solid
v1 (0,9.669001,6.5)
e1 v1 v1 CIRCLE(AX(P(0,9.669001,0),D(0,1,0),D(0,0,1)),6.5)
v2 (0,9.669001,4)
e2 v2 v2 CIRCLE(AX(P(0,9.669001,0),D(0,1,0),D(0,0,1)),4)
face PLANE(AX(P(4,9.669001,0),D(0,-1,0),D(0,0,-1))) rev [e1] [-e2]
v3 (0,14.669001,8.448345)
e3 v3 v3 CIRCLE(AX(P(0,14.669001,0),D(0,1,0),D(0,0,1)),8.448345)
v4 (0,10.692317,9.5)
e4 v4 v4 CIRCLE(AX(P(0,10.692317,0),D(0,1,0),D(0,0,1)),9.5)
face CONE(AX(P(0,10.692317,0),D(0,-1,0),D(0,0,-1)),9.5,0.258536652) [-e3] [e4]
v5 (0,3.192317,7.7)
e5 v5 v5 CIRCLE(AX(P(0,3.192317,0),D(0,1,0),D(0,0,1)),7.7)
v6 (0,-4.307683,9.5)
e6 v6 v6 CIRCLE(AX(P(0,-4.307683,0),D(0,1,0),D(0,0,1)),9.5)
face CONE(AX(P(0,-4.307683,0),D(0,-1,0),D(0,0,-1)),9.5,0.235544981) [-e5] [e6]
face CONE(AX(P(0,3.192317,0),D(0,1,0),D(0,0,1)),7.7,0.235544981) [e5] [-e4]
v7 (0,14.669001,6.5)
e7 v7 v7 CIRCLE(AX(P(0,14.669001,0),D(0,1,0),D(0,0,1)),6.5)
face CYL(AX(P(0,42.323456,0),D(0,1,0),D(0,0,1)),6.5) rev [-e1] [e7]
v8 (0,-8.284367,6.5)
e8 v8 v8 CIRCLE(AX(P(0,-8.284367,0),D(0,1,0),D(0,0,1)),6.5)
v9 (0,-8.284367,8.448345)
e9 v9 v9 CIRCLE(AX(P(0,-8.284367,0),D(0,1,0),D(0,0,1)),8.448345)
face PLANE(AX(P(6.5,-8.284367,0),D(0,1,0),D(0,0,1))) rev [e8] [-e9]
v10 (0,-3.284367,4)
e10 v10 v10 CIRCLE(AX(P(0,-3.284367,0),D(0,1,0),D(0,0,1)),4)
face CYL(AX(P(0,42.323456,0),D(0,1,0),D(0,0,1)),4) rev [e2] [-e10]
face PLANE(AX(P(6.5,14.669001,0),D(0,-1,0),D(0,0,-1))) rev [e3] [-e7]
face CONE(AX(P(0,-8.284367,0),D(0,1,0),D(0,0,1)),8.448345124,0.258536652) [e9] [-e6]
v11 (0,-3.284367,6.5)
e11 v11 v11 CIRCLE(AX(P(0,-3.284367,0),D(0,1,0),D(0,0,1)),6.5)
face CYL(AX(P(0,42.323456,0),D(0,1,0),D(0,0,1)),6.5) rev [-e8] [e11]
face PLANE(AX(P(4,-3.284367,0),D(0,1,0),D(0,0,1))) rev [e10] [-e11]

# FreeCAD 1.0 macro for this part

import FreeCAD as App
import Part
import Sketcher

V = App.Vector

doc = App.newDocument("Part")
body = doc.addObject("PartDesign::Body", "Body")

sketch1 = doc.addObject("Sketcher::SketchObject", "Sketch")
body.addObject(sketch1)
sketch1.AttachmentSupport = (doc.XY_Plane, [""])
sketch1.MapMode = "FlatFace"
sketch1.addGeometry(Part.LineSegment(V(4, 9.669001, 0), V(4, -3.284367, 0)), False)
sketch1.addGeometry(Part.LineSegment(V(4, -3.284367, 0), V(6.5, -3.284367, 0)), False)
sketch1.addGeometry(Part.LineSegment(V(6.5, -3.284367, 0), V(6.5, -8.284367, 0)), False)
sketch1.addGeometry(Part.LineSegment(V(6.5, -8.284367, 0), V(8.448345, -8.284367, 0)), False)
sketch1.addGeometry(Part.LineSegment(V(8.448345, -8.284367, 0), V(9.5, -4.307683, 0)), False)
sketch1.addGeometry(Part.LineSegment(V(9.5, -4.307683, 0), V(7.7, 3.192317, 0)), False)
sketch1.addGeometry(Part.LineSegment(V(7.7, 3.192317, 0), V(9.5, 10.692317, 0)), False)
sketch1.addGeometry(Part.LineSegment(V(9.5, 10.692317, 0), V(8.448345, 14.669001, 0)), False)
sketch1.addGeometry(Part.LineSegment(V(8.448345, 14.669001, 0), V(6.5, 14.669001, 0)), False)
sketch1.addGeometry(Part.LineSegment(V(6.5, 14.669001, 0), V(6.5, 9.669001, 0)), False)
sketch1.addGeometry(Part.LineSegment(V(6.5, 9.669001, 0), V(4, 9.669001, 0)), False)
sketch1.addConstraint(Sketcher.Constraint("Coincident", 0, 2, 1, 1))
sketch1.addConstraint(Sketcher.Constraint("Coincident", 1, 2, 2, 1))
sketch1.addConstraint(Sketcher.Constraint("Coincident", 2, 2, 3, 1))
sketch1.addConstraint(Sketcher.Constraint("Coincident", 3, 2, 4, 1))
sketch1.addConstraint(Sketcher.Constraint("Coincident", 4, 2, 5, 1))
sketch1.addConstraint(Sketcher.Constraint("Coincident", 5, 2, 6, 1))
sketch1.addConstraint(Sketcher.Constraint("Coincident", 6, 2, 7, 1))
sketch1.addConstraint(Sketcher.Constraint("Coincident", 7, 2, 8, 1))
sketch1.addConstraint(Sketcher.Constraint("Coincident", 8, 2, 9, 1))
sketch1.addConstraint(Sketcher.Constraint("Coincident", 9, 2, 10, 1))
sketch1.addConstraint(Sketcher.Constraint("Coincident", 10, 2, 0, 1))
sketch1.addConstraint(Sketcher.Constraint("Vertical", 0))
sketch1.addConstraint(Sketcher.Constraint("Horizontal", 1))
sketch1.addConstraint(Sketcher.Constraint("Vertical", 2))
sketch1.addConstraint(Sketcher.Constraint("Horizontal", 3))
sketch1.addConstraint(Sketcher.Constraint("Horizontal", 8))
sketch1.addConstraint(Sketcher.Constraint("Vertical", 9))
sketch1.addConstraint(Sketcher.Constraint("Horizontal", 10))
sketch1.addConstraint(Sketcher.Constraint("Vertical", 4, 2, 6, 2))
sketch1.addConstraint(Sketcher.Constraint("Vertical", 3, 2, 7, 2))
sketch1.addConstraint(Sketcher.Constraint("Vertical", 2, 2, 8, 2))
sketch1.addConstraint(Sketcher.Constraint("Equal", 2, 9))
sketch1.addConstraint(Sketcher.Constraint("Equal", 5, 6))
sketch1.addConstraint(Sketcher.Constraint("Equal", 4, 7))
sketch1.addConstraint(Sketcher.Constraint("DistanceY", 2, 2, 2, 1, 5.0))
sketch1.addConstraint(Sketcher.Constraint("DistanceX", 1, 1, 1, 2, 2.5))
sketch1.addConstraint(Sketcher.Constraint("DistanceX", -1, 1, 0, 2, 4.0))
sketch1.addConstraint(Sketcher.Constraint("DistanceX", 1, 2, 4, 2, 3.0))
sketch1.addConstraint(Sketcher.Constraint("DistanceY", 4, 2, 6, 2, 15.0))
sketch1.addConstraint(Sketcher.Constraint("DistanceX", -1, 1, 5, 2, 7.7))
sketch1.addConstraint(Sketcher.Constraint("DistanceY", -1, 1, 7, 2, 14.669001))
sketch1.addConstraint(Sketcher.Constraint("Distance", 4, 4.113392))
sketch1.addConstraint(Sketcher.Constraint("DistanceX", 3, 1, 3, 2, 1.948345))
revolution = doc.addObject("PartDesign::Revolution", "Revolution")
body.addObject(revolution)
revolution.Profile = sketch1
revolution.ReferenceAxis = (sketch1, ["V_Axis"])
revolution.Angle = 360

doc.recompute()
